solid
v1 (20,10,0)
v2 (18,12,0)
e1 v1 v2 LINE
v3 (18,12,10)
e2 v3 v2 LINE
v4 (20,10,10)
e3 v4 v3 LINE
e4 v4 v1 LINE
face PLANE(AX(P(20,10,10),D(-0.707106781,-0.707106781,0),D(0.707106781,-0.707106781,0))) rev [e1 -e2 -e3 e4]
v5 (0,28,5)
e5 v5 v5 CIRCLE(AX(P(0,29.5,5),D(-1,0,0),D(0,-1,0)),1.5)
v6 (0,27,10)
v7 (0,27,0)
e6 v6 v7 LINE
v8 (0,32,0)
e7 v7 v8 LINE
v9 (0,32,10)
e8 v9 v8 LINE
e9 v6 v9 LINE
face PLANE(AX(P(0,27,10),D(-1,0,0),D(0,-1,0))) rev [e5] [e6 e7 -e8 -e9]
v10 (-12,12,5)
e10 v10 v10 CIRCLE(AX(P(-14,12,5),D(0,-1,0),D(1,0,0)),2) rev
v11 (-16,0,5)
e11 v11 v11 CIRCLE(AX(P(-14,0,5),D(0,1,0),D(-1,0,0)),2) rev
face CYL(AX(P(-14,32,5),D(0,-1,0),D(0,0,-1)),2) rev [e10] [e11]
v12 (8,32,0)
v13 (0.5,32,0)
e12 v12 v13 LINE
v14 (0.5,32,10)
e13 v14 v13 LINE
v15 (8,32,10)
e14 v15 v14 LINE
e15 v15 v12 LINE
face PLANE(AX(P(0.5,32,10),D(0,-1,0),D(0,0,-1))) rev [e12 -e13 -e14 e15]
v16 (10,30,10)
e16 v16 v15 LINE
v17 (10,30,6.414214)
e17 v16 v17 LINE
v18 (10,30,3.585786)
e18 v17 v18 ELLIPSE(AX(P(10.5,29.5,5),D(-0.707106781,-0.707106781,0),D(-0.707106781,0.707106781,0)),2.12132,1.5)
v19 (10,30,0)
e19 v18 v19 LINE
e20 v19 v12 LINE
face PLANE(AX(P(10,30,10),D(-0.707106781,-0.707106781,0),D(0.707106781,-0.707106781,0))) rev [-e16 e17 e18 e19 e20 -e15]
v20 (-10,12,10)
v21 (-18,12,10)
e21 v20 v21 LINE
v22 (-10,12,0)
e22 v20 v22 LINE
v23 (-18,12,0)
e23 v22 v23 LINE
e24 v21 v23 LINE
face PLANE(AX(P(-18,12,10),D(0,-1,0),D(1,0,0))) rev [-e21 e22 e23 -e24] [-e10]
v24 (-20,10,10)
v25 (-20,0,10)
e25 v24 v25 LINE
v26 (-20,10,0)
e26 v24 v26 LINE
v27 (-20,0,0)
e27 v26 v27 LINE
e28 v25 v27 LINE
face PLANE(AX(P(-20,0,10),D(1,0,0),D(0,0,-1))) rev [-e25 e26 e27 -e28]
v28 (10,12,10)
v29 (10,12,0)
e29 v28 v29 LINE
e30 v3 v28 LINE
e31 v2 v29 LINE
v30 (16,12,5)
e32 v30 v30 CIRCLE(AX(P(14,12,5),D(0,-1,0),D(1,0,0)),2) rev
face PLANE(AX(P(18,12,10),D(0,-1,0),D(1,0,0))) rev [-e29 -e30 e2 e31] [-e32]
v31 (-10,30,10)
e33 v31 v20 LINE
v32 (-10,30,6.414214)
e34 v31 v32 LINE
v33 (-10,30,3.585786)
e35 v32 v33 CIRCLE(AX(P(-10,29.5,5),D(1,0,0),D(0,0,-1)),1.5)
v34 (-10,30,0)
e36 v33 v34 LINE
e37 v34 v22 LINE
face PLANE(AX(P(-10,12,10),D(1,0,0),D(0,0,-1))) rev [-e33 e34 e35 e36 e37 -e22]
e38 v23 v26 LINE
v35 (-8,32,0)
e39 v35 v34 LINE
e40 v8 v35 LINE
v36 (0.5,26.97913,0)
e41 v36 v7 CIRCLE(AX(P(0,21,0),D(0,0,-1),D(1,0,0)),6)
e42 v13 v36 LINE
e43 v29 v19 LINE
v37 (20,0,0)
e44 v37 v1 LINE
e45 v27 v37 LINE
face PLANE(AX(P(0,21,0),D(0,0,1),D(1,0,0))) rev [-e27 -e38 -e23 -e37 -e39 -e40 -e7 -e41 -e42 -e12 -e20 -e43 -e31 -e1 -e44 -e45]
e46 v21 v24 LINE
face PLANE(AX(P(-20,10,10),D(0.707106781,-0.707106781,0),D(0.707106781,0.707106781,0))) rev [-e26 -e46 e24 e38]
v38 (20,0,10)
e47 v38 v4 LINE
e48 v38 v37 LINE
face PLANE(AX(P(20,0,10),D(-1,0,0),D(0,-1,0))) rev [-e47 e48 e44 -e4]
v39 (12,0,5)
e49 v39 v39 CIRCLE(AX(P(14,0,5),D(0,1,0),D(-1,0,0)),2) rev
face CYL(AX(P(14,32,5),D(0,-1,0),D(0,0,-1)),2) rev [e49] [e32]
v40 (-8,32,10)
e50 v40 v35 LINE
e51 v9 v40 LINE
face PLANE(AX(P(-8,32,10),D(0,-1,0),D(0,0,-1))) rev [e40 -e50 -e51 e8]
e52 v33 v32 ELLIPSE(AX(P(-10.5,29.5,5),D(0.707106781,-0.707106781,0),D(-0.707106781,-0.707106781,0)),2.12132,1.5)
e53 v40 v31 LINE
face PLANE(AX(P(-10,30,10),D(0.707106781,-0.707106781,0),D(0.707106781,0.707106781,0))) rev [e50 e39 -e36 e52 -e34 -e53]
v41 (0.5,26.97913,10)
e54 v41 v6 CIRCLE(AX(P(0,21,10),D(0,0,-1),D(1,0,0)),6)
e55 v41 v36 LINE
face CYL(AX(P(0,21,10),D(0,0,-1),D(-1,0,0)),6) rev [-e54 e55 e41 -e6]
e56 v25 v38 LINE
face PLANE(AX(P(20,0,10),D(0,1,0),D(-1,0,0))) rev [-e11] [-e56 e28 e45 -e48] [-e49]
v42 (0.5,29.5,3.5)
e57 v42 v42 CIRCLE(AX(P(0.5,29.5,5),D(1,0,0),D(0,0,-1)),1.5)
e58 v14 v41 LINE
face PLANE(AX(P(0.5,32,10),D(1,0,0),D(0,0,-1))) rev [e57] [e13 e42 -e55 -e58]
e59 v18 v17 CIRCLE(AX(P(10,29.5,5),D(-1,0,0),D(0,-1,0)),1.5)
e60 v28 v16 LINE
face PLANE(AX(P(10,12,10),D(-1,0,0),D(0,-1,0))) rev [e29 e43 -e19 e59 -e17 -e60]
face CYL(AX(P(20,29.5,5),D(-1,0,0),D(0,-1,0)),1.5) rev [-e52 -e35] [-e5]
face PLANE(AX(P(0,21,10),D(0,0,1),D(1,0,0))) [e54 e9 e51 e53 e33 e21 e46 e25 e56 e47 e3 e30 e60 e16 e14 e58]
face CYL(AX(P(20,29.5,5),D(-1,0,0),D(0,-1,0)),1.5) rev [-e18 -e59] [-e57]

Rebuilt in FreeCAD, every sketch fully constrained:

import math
import FreeCAD as App
import Part
import Sketcher
Q = App.Units.Quantity

doc = App.newDocument("Part")
params = doc.addObject("Spreadsheet::Sheet", "Params")
for row, (alias, value) in enumerate([
    ("sketch1_radius", "6 mm"),
    ("sketch1_width", "40 mm"),
    ("sketch1_width2", "8 mm"),
    ("sketch1_height", "10 mm"),
    ("sketch1_height2", "18 mm"),
    ("pad1_length", "10 mm"),
    ("sketch2_diameter", "3 mm"),
    ("sketch3_diameter", "4 mm"),
    ("sketch4_diameter", "4 mm"),
    ("sketch5_diameter", "4 mm"),
    ("pocket4_length", "31 mm"),
], start=1):
    params.set(f"A{row}", alias)
    params.set(f"B{row}", "=" + value)
    params.setAlias(f"B{row}", alias)

body = doc.addObject("PartDesign::Body", "Body")

sketch1 = doc.addObject("Sketcher::SketchObject", "Sketch")
body.addObject(sketch1)
sketch1.AttachmentSupport = (doc.XY_Plane, [""])
sketch1.MapMode = "FlatFace"
sketch1.addGeometry(Part.LineSegment(App.Vector(-20, 0, 0), App.Vector(20, 0, 0)), False)
sketch1.addGeometry(Part.LineSegment(App.Vector(20, 0, 0), App.Vector(20, 10, 0)), False)
sketch1.addGeometry(Part.LineSegment(App.Vector(20, 10, 0), App.Vector(18, 12, 0)), False)
sketch1.addGeometry(Part.LineSegment(App.Vector(18, 12, 0), App.Vector(10, 12, 0)), False)
sketch1.addGeometry(Part.LineSegment(App.Vector(10, 12, 0), App.Vector(10, 30, 0)), False)
sketch1.addGeometry(Part.LineSegment(App.Vector(10, 30, 0), App.Vector(8, 32, 0)), False)
sketch1.addGeometry(Part.LineSegment(App.Vector(8, 32, 0), App.Vector(0.5, 32, 0)), False)
sketch1.addGeometry(Part.LineSegment(App.Vector(0.5, 32, 0), App.Vector(0.5, 27, 0)), False)
sketch1.addGeometry(Part.ArcOfCircle(Part.Circle(App.Vector(0, 21, 0), App.Vector(0, 0, 1), 6), math.radians(90), math.radians(445)), False)
sketch1.addGeometry(Part.LineSegment(App.Vector(0, 27, 0), App.Vector(0, 32, 0)), False)
sketch1.addGeometry(Part.LineSegment(App.Vector(0, 32, 0), App.Vector(-8, 32, 0)), False)
sketch1.addGeometry(Part.LineSegment(App.Vector(-8, 32, 0), App.Vector(-10, 30, 0)), False)
sketch1.addGeometry(Part.LineSegment(App.Vector(-10, 30, 0), App.Vector(-10, 12, 0)), False)
sketch1.addGeometry(Part.LineSegment(App.Vector(-10, 12, 0), App.Vector(-18, 12, 0)), False)
sketch1.addGeometry(Part.LineSegment(App.Vector(-18, 12, 0), App.Vector(-20, 10, 0)), False)
sketch1.addGeometry(Part.LineSegment(App.Vector(-20, 10, 0), App.Vector(-20, 0, 0)), False)
sketch1.addConstraint(Sketcher.Constraint("Coincident", 0, 2, 1, 1))
sketch1.addConstraint(Sketcher.Constraint("Coincident", 1, 2, 2, 1))
sketch1.addConstraint(Sketcher.Constraint("Coincident", 2, 2, 3, 1))
sketch1.addConstraint(Sketcher.Constraint("Coincident", 3, 2, 4, 1))
sketch1.addConstraint(Sketcher.Constraint("Coincident", 4, 2, 5, 1))
sketch1.addConstraint(Sketcher.Constraint("Coincident", 5, 2, 6, 1))
sketch1.addConstraint(Sketcher.Constraint("Coincident", 6, 2, 7, 1))
sketch1.addConstraint(Sketcher.Constraint("Coincident", 7, 2, 8, 2))
sketch1.addConstraint(Sketcher.Constraint("Coincident", 8, 1, 9, 1))
sketch1.addConstraint(Sketcher.Constraint("Coincident", 9, 2, 10, 1))
sketch1.addConstraint(Sketcher.Constraint("Coincident", 10, 2, 11, 1))
sketch1.addConstraint(Sketcher.Constraint("Coincident", 11, 2, 12, 1))
sketch1.addConstraint(Sketcher.Constraint("Coincident", 12, 2, 13, 1))
sketch1.addConstraint(Sketcher.Constraint("Coincident", 13, 2, 14, 1))
sketch1.addConstraint(Sketcher.Constraint("Coincident", 14, 2, 15, 1))
sketch1.addConstraint(Sketcher.Constraint("Coincident", 15, 2, 0, 1))
sketch1.addConstraint(Sketcher.Constraint("Horizontal", 0))
sketch1.addConstraint(Sketcher.Constraint("Vertical", 1))
sketch1.addConstraint(Sketcher.Constraint("Horizontal", 3))
sketch1.addConstraint(Sketcher.Constraint("Vertical", 4))
sketch1.addConstraint(Sketcher.Constraint("Horizontal", 6))
sketch1.addConstraint(Sketcher.Constraint("Vertical", 7))
sketch1.addConstraint(Sketcher.Constraint("Vertical", 9))
sketch1.addConstraint(Sketcher.Constraint("Horizontal", 10))
sketch1.addConstraint(Sketcher.Constraint("Vertical", 12))
sketch1.addConstraint(Sketcher.Constraint("Horizontal", 13))
sketch1.addConstraint(Sketcher.Constraint("Vertical", 15))
sketch1.addConstraint(Sketcher.Constraint("Symmetric", 0, 2, 15, 2, -1, 1))
sketch1.addConstraint(Sketcher.Constraint("Symmetric", 5, 2, 10, 2, -2))
sketch1.addConstraint(Sketcher.Constraint("Symmetric", 4, 2, 11, 2, -2))
sketch1.addConstraint(Sketcher.Constraint("Symmetric", 2, 2, 13, 2, -2))
sketch1.addConstraint(Sketcher.Constraint("PointOnObject", 8, 3, -2))
sketch1.addConstraint(Sketcher.Constraint("PointOnObject", 8, 1, -2))
sketch1.addConstraint(Sketcher.Constraint("Parallel", 2, 5))
sketch1.addConstraint(Sketcher.Constraint("Perpendicular", 5, 11))
sketch1.addConstraint(Sketcher.Constraint("Parallel", 11, 14))
sketch1.addConstraint(Sketcher.Constraint("Equal", 3, 10))
sketch1.addConstraint(Sketcher.Constraint("Equal", 2, 5))
sketch1.addConstraint(Sketcher.Constraint("Radius", 8, Q("6 mm")))
sketch1.addConstraint(Sketcher.Constraint("DistanceX", 0, 1, 0, 2, Q("40 mm")))
sketch1.addConstraint(Sketcher.Constraint("DistanceX", 3, 2, 3, 1, Q("8 mm")))
sketch1.addConstraint(Sketcher.Constraint("DistanceY", 1, 1, 1, 2, Q("10 mm")))
sketch1.addConstraint(Sketcher.Constraint("DistanceY", 4, 1, 4, 2, Q("18 mm")))
sketch1.addConstraint(Sketcher.Constraint("DistanceY", 9, 1, 9, 2, Q("5 mm")))
sketch1.addConstraint(Sketcher.Constraint("DistanceX", 6, 2, 6, 1, Q("7.5 mm")))
sketch1.setExpression("Constraints[38]", "Params.sketch1_radius")
sketch1.setExpression("Constraints[39]", "Params.sketch1_width")
sketch1.setExpression("Constraints[40]", "Params.sketch1_width2")
sketch1.setExpression("Constraints[41]", "Params.sketch1_height")
sketch1.setExpression("Constraints[42]", "Params.sketch1_height2")
pad1 = doc.addObject("PartDesign::Pad", "Pad")
body.addObject(pad1)
pad1.Profile = sketch1
pad1.setExpression("Length", "Params.pad1_length")

sketch2 = doc.addObject("Sketcher::SketchObject", "Sketch001")
body.addObject(sketch2)
sketch2.AttachmentSupport = (doc.YZ_Plane, [""])
sketch2.MapMode = "FlatFace"
sketch2.AttachmentOffset = App.Placement(App.Vector(0, 0, -10), App.Rotation())
sketch2.addGeometry(Part.Circle(App.Vector(29.5, 5, 0), App.Vector(0, 0, 1), 1.5), False)
sketch2.addConstraint(Sketcher.Constraint("Diameter", 0, Q("3 mm")))
sketch2.addConstraint(Sketcher.Constraint("DistanceY", -1, 1, 0, 3, Q("5 mm")))
sketch2.addConstraint(Sketcher.Constraint("DistanceX", -1, 1, 0, 3, Q("29.5 mm")))
sketch2.setExpression("Constraints[0]", "Params.sketch2_diameter")
pocket1 = doc.addObject("PartDesign::Pocket", "Pocket")
body.addObject(pocket1)
pocket1.Profile = sketch2
pocket1.Type = "ThroughAll"
pocket1.Midplane = True

sketch3 = doc.addObject("Sketcher::SketchObject", "Sketch002")
body.addObject(sketch3)
sketch3.AttachmentSupport = (doc.XZ_Plane, [""])
sketch3.MapMode = "FlatFace"
sketch3.AttachmentOffset = App.Placement(App.Vector(0, 0, -12), App.Rotation())
sketch3.addGeometry(Part.Circle(App.Vector(14, 5, 0), App.Vector(0, 0, 1), 2), False)
sketch3.addConstraint(Sketcher.Constraint("Diameter", 0, Q("4 mm")))
sketch3.addConstraint(Sketcher.Constraint("DistanceX", -1, 1, 0, 3, Q("14 mm")))
sketch3.addConstraint(Sketcher.Constraint("DistanceY", -1, 1, 0, 3, Q("5 mm")))
sketch3.setExpression("Constraints[0]", "Params.sketch3_diameter")
pocket2 = doc.addObject("PartDesign::Pocket", "Pocket001")
body.addObject(pocket2)
pocket2.Profile = sketch3
pocket2.Type = "UpToFirst"
pocket2.Reversed = True

sketch4 = doc.addObject("Sketcher::SketchObject", "Sketch003")
body.addObject(sketch4)
sketch4.AttachmentSupport = (doc.XZ_Plane, [""])
sketch4.MapMode = "FlatFace"
sketch4.AttachmentOffset = App.Placement(App.Vector(0, 0, -12), App.Rotation())
sketch4.addGeometry(Part.Circle(App.Vector(-14, 5, 0), App.Vector(0, 0, 1), 2), False)
sketch4.addConstraint(Sketcher.Constraint("Diameter", 0, Q("4 mm")))
sketch4.addConstraint(Sketcher.Constraint("DistanceX", 0, 3, -1, 1, Q("14 mm")))
sketch4.addConstraint(Sketcher.Constraint("DistanceY", -1, 1, 0, 3, Q("5 mm")))
sketch4.setExpression("Constraints[0]", "Params.sketch4_diameter")
pocket3 = doc.addObject("PartDesign::Pocket", "Pocket002")
body.addObject(pocket3)
pocket3.Profile = sketch4
pocket3.Type = "UpToFirst"
pocket3.Reversed = True

sketch5 = doc.addObject("Sketcher::SketchObject", "Sketch004")
body.addObject(sketch5)
sketch5.AttachmentSupport = (doc.XZ_Plane, [""])
sketch5.MapMode = "FlatFace"
sketch5.AttachmentOffset = App.Placement(App.Vector(0, 0, -12), App.Rotation())
sketch5.addGeometry(Part.Circle(App.Vector(14, 5, 0), App.Vector(0, 0, 1), 2), False)
sketch5.addGeometry(Part.Circle(App.Vector(-14, 5, 0), App.Vector(0, 0, 1), 2), False)
sketch5.addConstraint(Sketcher.Constraint("Equal", 0, 1))
sketch5.addConstraint(Sketcher.Constraint("Symmetric", 0, 3, 1, 3, -2))
sketch5.addConstraint(Sketcher.Constraint("Diameter", 0, Q("4 mm")))
sketch5.addConstraint(Sketcher.Constraint("DistanceX", -1, 1, 0, 3, Q("14 mm")))
sketch5.addConstraint(Sketcher.Constraint("DistanceY", -1, 1, 0, 3, Q("5 mm")))
sketch5.setExpression("Constraints[2]", "Params.sketch5_diameter")
pocket4 = doc.addObject("PartDesign::Pocket", "Pocket003")
body.addObject(pocket4)
pocket4.Profile = sketch5
pocket4.setExpression("Length", "Params.pocket4_length")

doc.recompute()
